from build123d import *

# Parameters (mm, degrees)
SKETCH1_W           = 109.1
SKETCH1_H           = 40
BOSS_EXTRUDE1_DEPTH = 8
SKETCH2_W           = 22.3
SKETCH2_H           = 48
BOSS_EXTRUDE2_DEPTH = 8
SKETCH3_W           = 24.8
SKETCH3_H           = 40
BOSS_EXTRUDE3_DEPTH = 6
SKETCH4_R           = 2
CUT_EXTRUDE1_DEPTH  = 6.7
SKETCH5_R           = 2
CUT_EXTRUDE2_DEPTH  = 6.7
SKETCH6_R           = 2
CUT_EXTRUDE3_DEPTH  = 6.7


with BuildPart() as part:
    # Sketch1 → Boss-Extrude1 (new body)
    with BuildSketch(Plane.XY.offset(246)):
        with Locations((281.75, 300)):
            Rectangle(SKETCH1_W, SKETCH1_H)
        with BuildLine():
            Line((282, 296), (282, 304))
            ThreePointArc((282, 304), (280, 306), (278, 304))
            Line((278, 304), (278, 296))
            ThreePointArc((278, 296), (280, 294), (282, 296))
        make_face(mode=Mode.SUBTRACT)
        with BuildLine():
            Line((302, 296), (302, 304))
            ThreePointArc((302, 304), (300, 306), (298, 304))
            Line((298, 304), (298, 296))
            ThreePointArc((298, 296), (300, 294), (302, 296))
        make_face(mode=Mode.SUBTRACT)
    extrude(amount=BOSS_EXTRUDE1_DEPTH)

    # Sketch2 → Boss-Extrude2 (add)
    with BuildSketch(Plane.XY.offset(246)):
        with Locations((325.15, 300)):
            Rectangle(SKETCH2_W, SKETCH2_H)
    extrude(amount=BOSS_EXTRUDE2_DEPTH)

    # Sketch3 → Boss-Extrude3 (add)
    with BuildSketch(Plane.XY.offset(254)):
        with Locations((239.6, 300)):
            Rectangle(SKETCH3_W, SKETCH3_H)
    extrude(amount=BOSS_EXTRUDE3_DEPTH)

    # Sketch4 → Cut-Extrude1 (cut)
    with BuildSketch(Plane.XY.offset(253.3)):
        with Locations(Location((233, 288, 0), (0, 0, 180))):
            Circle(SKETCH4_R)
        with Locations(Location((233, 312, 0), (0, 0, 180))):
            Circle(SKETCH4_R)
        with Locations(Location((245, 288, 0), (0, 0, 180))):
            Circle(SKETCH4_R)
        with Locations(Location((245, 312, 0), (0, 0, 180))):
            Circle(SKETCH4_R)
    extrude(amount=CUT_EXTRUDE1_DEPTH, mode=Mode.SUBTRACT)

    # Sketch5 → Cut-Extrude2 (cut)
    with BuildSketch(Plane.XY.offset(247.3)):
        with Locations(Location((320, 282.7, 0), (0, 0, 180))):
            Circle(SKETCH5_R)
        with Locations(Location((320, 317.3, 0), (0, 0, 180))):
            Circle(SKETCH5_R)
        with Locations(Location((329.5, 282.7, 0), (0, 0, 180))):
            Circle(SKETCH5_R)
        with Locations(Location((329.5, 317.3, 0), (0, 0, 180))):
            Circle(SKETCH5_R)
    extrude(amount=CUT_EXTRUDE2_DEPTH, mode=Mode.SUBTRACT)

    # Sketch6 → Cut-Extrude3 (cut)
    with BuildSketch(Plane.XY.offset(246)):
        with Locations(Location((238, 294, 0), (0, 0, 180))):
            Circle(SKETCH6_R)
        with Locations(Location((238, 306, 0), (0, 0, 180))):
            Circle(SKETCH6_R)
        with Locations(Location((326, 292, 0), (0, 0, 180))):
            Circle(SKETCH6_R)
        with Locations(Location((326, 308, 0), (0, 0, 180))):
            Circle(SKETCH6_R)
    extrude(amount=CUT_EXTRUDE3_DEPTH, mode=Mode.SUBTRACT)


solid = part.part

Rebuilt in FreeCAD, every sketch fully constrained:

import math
import FreeCAD as App
import Part
import Sketcher


def add_polygon(sketch, points):
    """Adds a closed chain of lines whose ends are joined by coincident constraints."""
    first, n = sketch.GeometryCount, len(points)
    for a, b in zip(points, points[1:] + points[:1]):
        sketch.addGeometry(Part.LineSegment(App.Vector(*a, 0), App.Vector(*b, 0)), False)
    for i in range(n):
        sketch.addConstraint(Sketcher.Constraint("Coincident", first + i, 2, first + (i + 1) % n, 1))

doc = App.newDocument("Part")
body = doc.addObject("PartDesign::Body", "Body")

# Sketch on XY plane
sketch1 = body.newObject("Sketcher::SketchObject", "Sketch")
sketch1.AttachmentSupport = (doc.getObject("XY_Plane"), [""])
sketch1.MapMode = "FlatFace"
sketch1.AttachmentOffset = App.Placement(App.Vector(0, 0, 246), App.Rotation())
add_polygon(sketch1, [(227.2, 320), (227.2, 280), (336.3, 280), (336.3, 320)])  # lines 0-3
sketch1.addGeometry(Part.LineSegment(App.Vector(282, 304, 0), App.Vector(282, 296, 0)), False)  # 4
sketch1.addGeometry(Part.ArcOfCircle(Part.Circle(App.Vector(280, 296, 0), App.Vector(0, 0, 1), 2), math.radians(180), math.radians(360)), False)  # 5
sketch1.addGeometry(Part.LineSegment(App.Vector(278, 296, 0), App.Vector(278, 304, 0)), False)  # 6
sketch1.addGeometry(Part.ArcOfCircle(Part.Circle(App.Vector(280, 304, 0), App.Vector(0, 0, 1), 2), math.radians(0), math.radians(180)), False)  # 7
sketch1.addGeometry(Part.LineSegment(App.Vector(302, 304, 0), App.Vector(302, 296, 0)), False)  # 8
sketch1.addGeometry(Part.ArcOfCircle(Part.Circle(App.Vector(300, 296, 0), App.Vector(0, 0, 1), 2), math.radians(180), math.radians(360)), False)  # 9
sketch1.addGeometry(Part.LineSegment(App.Vector(298, 296, 0), App.Vector(298, 304, 0)), False)  # 10
sketch1.addGeometry(Part.ArcOfCircle(Part.Circle(App.Vector(300, 304, 0), App.Vector(0, 0, 1), 2), math.radians(0), math.radians(180)), False)  # 11
sketch1.addConstraint([
    Sketcher.Constraint("Tangent", 4, 2, 5, 2),
    Sketcher.Constraint("Tangent", 5, 1, 6, 1),
    Sketcher.Constraint("Tangent", 6, 2, 7, 2),
    Sketcher.Constraint("Tangent", 7, 1, 4, 1),
    Sketcher.Constraint("Tangent", 8, 2, 9, 2),
    Sketcher.Constraint("Tangent", 9, 1, 10, 1),
    Sketcher.Constraint("Tangent", 10, 2, 11, 2),
    Sketcher.Constraint("Tangent", 11, 1, 8, 1),
    Sketcher.Constraint("Vertical", 0),
    Sketcher.Constraint("Horizontal", 1),
    Sketcher.Constraint("Vertical", 2),
    Sketcher.Constraint("Horizontal", 3),
    Sketcher.Constraint("Vertical", 4),
    Sketcher.Constraint("Vertical", 6),
    Sketcher.Constraint("Vertical", 8),
    Sketcher.Constraint("Vertical", 10),
    Sketcher.Constraint("Equal", 7, 9),
    Sketcher.Constraint("Horizontal", 5, 3, 9, 3),
    Sketcher.Constraint("Horizontal", 7, 3, 11, 3),
    Sketcher.Constraint("Radius", 5, 2.0),
    Sketcher.Constraint("DistanceY", 0, 2, 0, 1, 40.0),
    Sketcher.Constraint("DistanceY", 4, 2, 4, 1, 8.0),
    Sketcher.Constraint("DistanceX", 1, 1, 1, 2, 109.1),
    Sketcher.Constraint("DistanceX", -1, 1, 5, 3, 280.0),
    Sketcher.Constraint("DistanceY", -1, 1, 5, 3, 296.0),
    Sketcher.Constraint("DistanceX", -1, 1, 9, 3, 300.0),
    Sketcher.Constraint("DistanceY", -1, 1, 0, 2, 280.0),
    Sketcher.Constraint("DistanceX", -1, 1, 0, 2, 227.2),
])
pad1 = body.newObject("PartDesign::Pad", "Pad")
pad1.Profile = sketch1
pad1.Length = 8

# Sketch on XY plane
sketch2 = body.newObject("Sketcher::SketchObject", "Sketch001")
sketch2.AttachmentSupport = (doc.getObject("XY_Plane"), [""])
sketch2.MapMode = "FlatFace"
sketch2.AttachmentOffset = App.Placement(App.Vector(0, 0, 246), App.Rotation())
add_polygon(sketch2, [(314, 324), (314, 276), (336, 276), (336, 324)])  # lines 0-3
sketch2.addConstraint([
    Sketcher.Constraint("Vertical", 0),
    Sketcher.Constraint("Horizontal", 1),
    Sketcher.Constraint("Vertical", 2),
    Sketcher.Constraint("Horizontal", 3),
    Sketcher.Constraint("DistanceY", 0, 2, 0, 1, 48.0),
    Sketcher.Constraint("DistanceX", 1, 1, 1, 2, 22.3),
    Sketcher.Constraint("DistanceX", -1, 1, 0, 2, 314.0),
    Sketcher.Constraint("DistanceY", -1, 1, 0, 2, 276.0),
])
pad2 = body.newObject("PartDesign::Pad", "Pad001")
pad2.Profile = sketch2
pad2.Length = 8

# Sketch on XY plane
sketch3 = body.newObject("Sketcher::SketchObject", "Sketch002")
sketch3.AttachmentSupport = (doc.getObject("XY_Plane"), [""])
sketch3.MapMode = "FlatFace"
sketch3.AttachmentOffset = App.Placement(App.Vector(0, 0, 254), App.Rotation())
add_polygon(sketch3, [(227, 320), (227, 280), (252, 280), (252, 320)])  # lines 0-3
sketch3.addConstraint([
    Sketcher.Constraint("Vertical", 0),
    Sketcher.Constraint("Horizontal", 1),
    Sketcher.Constraint("Vertical", 2),
    Sketcher.Constraint("Horizontal", 3),
    Sketcher.Constraint("DistanceY", 0, 2, 0, 1, 40.0),
    Sketcher.Constraint("DistanceX", 1, 1, 1, 2, 24.8),
    Sketcher.Constraint("DistanceY", -1, 1, 0, 2, 280.0),
    Sketcher.Constraint("DistanceX", -1, 1, 1, 2, 252.0),
])
pad3 = body.newObject("PartDesign::Pad", "Pad002")
pad3.Profile = sketch3
pad3.Length = 6

# Sketch on XY plane
sketch4 = body.newObject("Sketcher::SketchObject", "Sketch003")
sketch4.AttachmentSupport = (doc.getObject("XY_Plane"), [""])
sketch4.MapMode = "FlatFace"
sketch4.AttachmentOffset = App.Placement(App.Vector(0, 0, 253.3), App.Rotation())
sketch4.addGeometry([
    Part.Circle(App.Vector(233, 288, 0), App.Vector(0, 0, 1), 2),
    Part.Circle(App.Vector(233, 312, 0), App.Vector(0, 0, 1), 2),
    Part.Circle(App.Vector(245, 288, 0), App.Vector(0, 0, 1), 2),
    Part.Circle(App.Vector(245, 312, 0), App.Vector(0, 0, 1), 2),
], False)
sketch4.addConstraint([
    Sketcher.Constraint("Equal", 0, 1),
    Sketcher.Constraint("Equal", 1, 2),
    Sketcher.Constraint("Equal", 2, 3),
    Sketcher.Constraint("Horizontal", 0, 3, 2, 3),
    Sketcher.Constraint("Horizontal", 1, 3, 3, 3),
    Sketcher.Constraint("Vertical", 0, 3, 1, 3),
    Sketcher.Constraint("Vertical", 2, 3, 3, 3),
    Sketcher.Constraint("Diameter", 0, 4.0),
    Sketcher.Constraint("DistanceX", -1, 1, 0, 3, 233.0),
    Sketcher.Constraint("DistanceY", -1, 1, 0, 3, 288.0),
    Sketcher.Constraint("DistanceY", -1, 1, 1, 3, 312.0),
    Sketcher.Constraint("DistanceX", -1, 1, 2, 3, 245.0),
])
pocket1 = body.newObject("PartDesign::Pocket", "Pocket")
pocket1.Profile = sketch4
pocket1.Length = 6.7
pocket1.Reversed = True

# Sketch on XY plane
sketch5 = body.newObject("Sketcher::SketchObject", "Sketch004")
sketch5.AttachmentSupport = (doc.getObject("XY_Plane"), [""])
sketch5.MapMode = "FlatFace"
sketch5.AttachmentOffset = App.Placement(App.Vector(0, 0, 247.3), App.Rotation())
sketch5.addGeometry([
    Part.Circle(App.Vector(320, 282.7, 0), App.Vector(0, 0, 1), 2),
    Part.Circle(App.Vector(320, 317.3, 0), App.Vector(0, 0, 1), 2),
    Part.Circle(App.Vector(329.5, 282.7, 0), App.Vector(0, 0, 1), 2),
    Part.Circle(App.Vector(329.5, 317.3, 0), App.Vector(0, 0, 1), 2),
], False)
sketch5.addConstraint([
    Sketcher.Constraint("Equal", 0, 1),
    Sketcher.Constraint("Equal", 1, 2),
    Sketcher.Constraint("Equal", 2, 3),
    Sketcher.Constraint("Horizontal", 0, 3, 2, 3),
    Sketcher.Constraint("Horizontal", 1, 3, 3, 3),
    Sketcher.Constraint("Vertical", 0, 3, 1, 3),
    Sketcher.Constraint("Vertical", 2, 3, 3, 3),
    Sketcher.Constraint("Diameter", 0, 4.0),
    Sketcher.Constraint("DistanceX", -1, 1, 0, 3, 320.0),
    Sketcher.Constraint("DistanceY", -1, 1, 0, 3, 282.7),
    Sketcher.Constraint("DistanceY", -1, 1, 1, 3, 317.3),
    Sketcher.Constraint("DistanceX", -1, 1, 2, 3, 329.5),
])
pocket2 = body.newObject("PartDesign::Pocket", "Pocket001")
pocket2.Profile = sketch5
pocket2.Length = 6.7
pocket2.Reversed = True

# Sketch on XY plane
sketch6 = body.newObject("Sketcher::SketchObject", "Sketch005")
sketch6.AttachmentSupport = (doc.getObject("XY_Plane"), [""])
sketch6.MapMode = "FlatFace"
sketch6.AttachmentOffset = App.Placement(App.Vector(0, 0, 246), App.Rotation())
sketch6.addGeometry([
    Part.Circle(App.Vector(238, 294, 0), App.Vector(0, 0, 1), 2),
    Part.Circle(App.Vector(238, 306, 0), App.Vector(0, 0, 1), 2),
    Part.Circle(App.Vector(326, 292, 0), App.Vector(0, 0, 1), 2),
    Part.Circle(App.Vector(326, 308, 0), App.Vector(0, 0, 1), 2),
], False)
sketch6.addConstraint([
    Sketcher.Constraint("Equal", 0, 1),
    Sketcher.Constraint("Equal", 1, 2),
    Sketcher.Constraint("Equal", 2, 3),
    Sketcher.Constraint("Vertical", 0, 3, 1, 3),
    Sketcher.Constraint("Vertical", 2, 3, 3, 3),
    Sketcher.Constraint("Diameter", 0, 4.0),
    Sketcher.Constraint("DistanceX", -1, 1, 0, 3, 238.0),
    Sketcher.Constraint("DistanceY", -1, 1, 0, 3, 294.0),
    Sketcher.Constraint("DistanceY", -1, 1, 1, 3, 306.0),
    Sketcher.Constraint("DistanceX", -1, 1, 2, 3, 326.0),
    Sketcher.Constraint("DistanceY", -1, 1, 2, 3, 292.0),
    Sketcher.Constraint("DistanceY", -1, 1, 3, 3, 308.0),
])
pocket3 = body.newObject("PartDesign::Pocket", "Pocket002")
pocket3.Profile = sketch6
pocket3.Length = 6.7
pocket3.Reversed = True

doc.recompute()
